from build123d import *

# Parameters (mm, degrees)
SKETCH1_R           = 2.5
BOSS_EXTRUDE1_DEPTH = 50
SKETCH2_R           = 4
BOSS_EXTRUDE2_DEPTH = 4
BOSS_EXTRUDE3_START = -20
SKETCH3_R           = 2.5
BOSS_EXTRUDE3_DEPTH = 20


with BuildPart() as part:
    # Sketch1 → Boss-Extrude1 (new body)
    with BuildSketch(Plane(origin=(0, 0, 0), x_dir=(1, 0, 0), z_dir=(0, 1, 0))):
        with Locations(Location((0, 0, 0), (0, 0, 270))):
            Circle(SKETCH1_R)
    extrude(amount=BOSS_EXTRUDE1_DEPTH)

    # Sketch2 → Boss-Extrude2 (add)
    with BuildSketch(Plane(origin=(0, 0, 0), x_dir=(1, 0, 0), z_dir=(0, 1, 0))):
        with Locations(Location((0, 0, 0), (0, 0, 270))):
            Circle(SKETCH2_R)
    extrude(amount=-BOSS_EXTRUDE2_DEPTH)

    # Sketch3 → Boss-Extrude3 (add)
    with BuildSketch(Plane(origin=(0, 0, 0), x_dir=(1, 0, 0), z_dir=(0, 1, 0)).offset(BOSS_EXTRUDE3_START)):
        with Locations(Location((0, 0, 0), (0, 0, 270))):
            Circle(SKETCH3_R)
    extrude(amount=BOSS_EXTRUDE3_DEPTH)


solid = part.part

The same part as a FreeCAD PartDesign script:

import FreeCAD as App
import Part
import Sketcher

V = App.Vector

doc = App.newDocument("Part")
body = doc.addObject("PartDesign::Body", "Body")

# Sketch on XZ plane
sketch1 = doc.addObject("Sketcher::SketchObject", "Sketch")
body.addObject(sketch1)
sketch1.AttachmentSupport = (doc.XZ_Plane, [""])
sketch1.MapMode = "FlatFace"
sketch1.addGeometry(Part.Circle(V(0, 0, 0), V(0, 0, 1), 2.5), False)
sketch1.addConstraint([
    Sketcher.Constraint("Coincident", 0, 3, -1, 1),
    Sketcher.Constraint("Diameter", 0, 5.0),
])
pad1 = doc.addObject("PartDesign::Pad", "Pad")
body.addObject(pad1)
pad1.Profile = sketch1
pad1.Length = 50
pad1.Reversed = True

# Sketch on XZ plane
sketch2 = doc.addObject("Sketcher::SketchObject", "Sketch001")
body.addObject(sketch2)
sketch2.AttachmentSupport = (doc.XZ_Plane, [""])
sketch2.MapMode = "FlatFace"
sketch2.addGeometry(Part.Circle(V(0, 0, 0), V(0, 0, 1), 4), False)
sketch2.addConstraint([
    Sketcher.Constraint("Coincident", 0, 3, -1, 1),
    Sketcher.Constraint("Diameter", 0, 8.0),
])
pad2 = doc.addObject("PartDesign::Pad", "Pad001")
body.addObject(pad2)
pad2.Profile = sketch2
pad2.Length = 4

# Sketch on XZ plane
sketch3 = doc.addObject("Sketcher::SketchObject", "Sketch002")
body.addObject(sketch3)
sketch3.AttachmentSupport = (doc.XZ_Plane, [""])
sketch3.MapMode = "FlatFace"
sketch3.AttachmentOffset = App.Placement(V(0, 0, 20), App.Rotation())
sketch3.addGeometry(Part.Circle(V(0, 0, 0), V(0, 0, 1), 2.5), False)
sketch3.addConstraint([
    Sketcher.Constraint("Coincident", 0, 3, -1, 1),
    Sketcher.Constraint("Diameter", 0, 5.0),
])
pad3 = doc.addObject("PartDesign::Pad", "Pad002")
body.addObject(pad3)
pad3.Profile = sketch3
pad3.Length = 20
pad3.Reversed = True

doc.recompute()
